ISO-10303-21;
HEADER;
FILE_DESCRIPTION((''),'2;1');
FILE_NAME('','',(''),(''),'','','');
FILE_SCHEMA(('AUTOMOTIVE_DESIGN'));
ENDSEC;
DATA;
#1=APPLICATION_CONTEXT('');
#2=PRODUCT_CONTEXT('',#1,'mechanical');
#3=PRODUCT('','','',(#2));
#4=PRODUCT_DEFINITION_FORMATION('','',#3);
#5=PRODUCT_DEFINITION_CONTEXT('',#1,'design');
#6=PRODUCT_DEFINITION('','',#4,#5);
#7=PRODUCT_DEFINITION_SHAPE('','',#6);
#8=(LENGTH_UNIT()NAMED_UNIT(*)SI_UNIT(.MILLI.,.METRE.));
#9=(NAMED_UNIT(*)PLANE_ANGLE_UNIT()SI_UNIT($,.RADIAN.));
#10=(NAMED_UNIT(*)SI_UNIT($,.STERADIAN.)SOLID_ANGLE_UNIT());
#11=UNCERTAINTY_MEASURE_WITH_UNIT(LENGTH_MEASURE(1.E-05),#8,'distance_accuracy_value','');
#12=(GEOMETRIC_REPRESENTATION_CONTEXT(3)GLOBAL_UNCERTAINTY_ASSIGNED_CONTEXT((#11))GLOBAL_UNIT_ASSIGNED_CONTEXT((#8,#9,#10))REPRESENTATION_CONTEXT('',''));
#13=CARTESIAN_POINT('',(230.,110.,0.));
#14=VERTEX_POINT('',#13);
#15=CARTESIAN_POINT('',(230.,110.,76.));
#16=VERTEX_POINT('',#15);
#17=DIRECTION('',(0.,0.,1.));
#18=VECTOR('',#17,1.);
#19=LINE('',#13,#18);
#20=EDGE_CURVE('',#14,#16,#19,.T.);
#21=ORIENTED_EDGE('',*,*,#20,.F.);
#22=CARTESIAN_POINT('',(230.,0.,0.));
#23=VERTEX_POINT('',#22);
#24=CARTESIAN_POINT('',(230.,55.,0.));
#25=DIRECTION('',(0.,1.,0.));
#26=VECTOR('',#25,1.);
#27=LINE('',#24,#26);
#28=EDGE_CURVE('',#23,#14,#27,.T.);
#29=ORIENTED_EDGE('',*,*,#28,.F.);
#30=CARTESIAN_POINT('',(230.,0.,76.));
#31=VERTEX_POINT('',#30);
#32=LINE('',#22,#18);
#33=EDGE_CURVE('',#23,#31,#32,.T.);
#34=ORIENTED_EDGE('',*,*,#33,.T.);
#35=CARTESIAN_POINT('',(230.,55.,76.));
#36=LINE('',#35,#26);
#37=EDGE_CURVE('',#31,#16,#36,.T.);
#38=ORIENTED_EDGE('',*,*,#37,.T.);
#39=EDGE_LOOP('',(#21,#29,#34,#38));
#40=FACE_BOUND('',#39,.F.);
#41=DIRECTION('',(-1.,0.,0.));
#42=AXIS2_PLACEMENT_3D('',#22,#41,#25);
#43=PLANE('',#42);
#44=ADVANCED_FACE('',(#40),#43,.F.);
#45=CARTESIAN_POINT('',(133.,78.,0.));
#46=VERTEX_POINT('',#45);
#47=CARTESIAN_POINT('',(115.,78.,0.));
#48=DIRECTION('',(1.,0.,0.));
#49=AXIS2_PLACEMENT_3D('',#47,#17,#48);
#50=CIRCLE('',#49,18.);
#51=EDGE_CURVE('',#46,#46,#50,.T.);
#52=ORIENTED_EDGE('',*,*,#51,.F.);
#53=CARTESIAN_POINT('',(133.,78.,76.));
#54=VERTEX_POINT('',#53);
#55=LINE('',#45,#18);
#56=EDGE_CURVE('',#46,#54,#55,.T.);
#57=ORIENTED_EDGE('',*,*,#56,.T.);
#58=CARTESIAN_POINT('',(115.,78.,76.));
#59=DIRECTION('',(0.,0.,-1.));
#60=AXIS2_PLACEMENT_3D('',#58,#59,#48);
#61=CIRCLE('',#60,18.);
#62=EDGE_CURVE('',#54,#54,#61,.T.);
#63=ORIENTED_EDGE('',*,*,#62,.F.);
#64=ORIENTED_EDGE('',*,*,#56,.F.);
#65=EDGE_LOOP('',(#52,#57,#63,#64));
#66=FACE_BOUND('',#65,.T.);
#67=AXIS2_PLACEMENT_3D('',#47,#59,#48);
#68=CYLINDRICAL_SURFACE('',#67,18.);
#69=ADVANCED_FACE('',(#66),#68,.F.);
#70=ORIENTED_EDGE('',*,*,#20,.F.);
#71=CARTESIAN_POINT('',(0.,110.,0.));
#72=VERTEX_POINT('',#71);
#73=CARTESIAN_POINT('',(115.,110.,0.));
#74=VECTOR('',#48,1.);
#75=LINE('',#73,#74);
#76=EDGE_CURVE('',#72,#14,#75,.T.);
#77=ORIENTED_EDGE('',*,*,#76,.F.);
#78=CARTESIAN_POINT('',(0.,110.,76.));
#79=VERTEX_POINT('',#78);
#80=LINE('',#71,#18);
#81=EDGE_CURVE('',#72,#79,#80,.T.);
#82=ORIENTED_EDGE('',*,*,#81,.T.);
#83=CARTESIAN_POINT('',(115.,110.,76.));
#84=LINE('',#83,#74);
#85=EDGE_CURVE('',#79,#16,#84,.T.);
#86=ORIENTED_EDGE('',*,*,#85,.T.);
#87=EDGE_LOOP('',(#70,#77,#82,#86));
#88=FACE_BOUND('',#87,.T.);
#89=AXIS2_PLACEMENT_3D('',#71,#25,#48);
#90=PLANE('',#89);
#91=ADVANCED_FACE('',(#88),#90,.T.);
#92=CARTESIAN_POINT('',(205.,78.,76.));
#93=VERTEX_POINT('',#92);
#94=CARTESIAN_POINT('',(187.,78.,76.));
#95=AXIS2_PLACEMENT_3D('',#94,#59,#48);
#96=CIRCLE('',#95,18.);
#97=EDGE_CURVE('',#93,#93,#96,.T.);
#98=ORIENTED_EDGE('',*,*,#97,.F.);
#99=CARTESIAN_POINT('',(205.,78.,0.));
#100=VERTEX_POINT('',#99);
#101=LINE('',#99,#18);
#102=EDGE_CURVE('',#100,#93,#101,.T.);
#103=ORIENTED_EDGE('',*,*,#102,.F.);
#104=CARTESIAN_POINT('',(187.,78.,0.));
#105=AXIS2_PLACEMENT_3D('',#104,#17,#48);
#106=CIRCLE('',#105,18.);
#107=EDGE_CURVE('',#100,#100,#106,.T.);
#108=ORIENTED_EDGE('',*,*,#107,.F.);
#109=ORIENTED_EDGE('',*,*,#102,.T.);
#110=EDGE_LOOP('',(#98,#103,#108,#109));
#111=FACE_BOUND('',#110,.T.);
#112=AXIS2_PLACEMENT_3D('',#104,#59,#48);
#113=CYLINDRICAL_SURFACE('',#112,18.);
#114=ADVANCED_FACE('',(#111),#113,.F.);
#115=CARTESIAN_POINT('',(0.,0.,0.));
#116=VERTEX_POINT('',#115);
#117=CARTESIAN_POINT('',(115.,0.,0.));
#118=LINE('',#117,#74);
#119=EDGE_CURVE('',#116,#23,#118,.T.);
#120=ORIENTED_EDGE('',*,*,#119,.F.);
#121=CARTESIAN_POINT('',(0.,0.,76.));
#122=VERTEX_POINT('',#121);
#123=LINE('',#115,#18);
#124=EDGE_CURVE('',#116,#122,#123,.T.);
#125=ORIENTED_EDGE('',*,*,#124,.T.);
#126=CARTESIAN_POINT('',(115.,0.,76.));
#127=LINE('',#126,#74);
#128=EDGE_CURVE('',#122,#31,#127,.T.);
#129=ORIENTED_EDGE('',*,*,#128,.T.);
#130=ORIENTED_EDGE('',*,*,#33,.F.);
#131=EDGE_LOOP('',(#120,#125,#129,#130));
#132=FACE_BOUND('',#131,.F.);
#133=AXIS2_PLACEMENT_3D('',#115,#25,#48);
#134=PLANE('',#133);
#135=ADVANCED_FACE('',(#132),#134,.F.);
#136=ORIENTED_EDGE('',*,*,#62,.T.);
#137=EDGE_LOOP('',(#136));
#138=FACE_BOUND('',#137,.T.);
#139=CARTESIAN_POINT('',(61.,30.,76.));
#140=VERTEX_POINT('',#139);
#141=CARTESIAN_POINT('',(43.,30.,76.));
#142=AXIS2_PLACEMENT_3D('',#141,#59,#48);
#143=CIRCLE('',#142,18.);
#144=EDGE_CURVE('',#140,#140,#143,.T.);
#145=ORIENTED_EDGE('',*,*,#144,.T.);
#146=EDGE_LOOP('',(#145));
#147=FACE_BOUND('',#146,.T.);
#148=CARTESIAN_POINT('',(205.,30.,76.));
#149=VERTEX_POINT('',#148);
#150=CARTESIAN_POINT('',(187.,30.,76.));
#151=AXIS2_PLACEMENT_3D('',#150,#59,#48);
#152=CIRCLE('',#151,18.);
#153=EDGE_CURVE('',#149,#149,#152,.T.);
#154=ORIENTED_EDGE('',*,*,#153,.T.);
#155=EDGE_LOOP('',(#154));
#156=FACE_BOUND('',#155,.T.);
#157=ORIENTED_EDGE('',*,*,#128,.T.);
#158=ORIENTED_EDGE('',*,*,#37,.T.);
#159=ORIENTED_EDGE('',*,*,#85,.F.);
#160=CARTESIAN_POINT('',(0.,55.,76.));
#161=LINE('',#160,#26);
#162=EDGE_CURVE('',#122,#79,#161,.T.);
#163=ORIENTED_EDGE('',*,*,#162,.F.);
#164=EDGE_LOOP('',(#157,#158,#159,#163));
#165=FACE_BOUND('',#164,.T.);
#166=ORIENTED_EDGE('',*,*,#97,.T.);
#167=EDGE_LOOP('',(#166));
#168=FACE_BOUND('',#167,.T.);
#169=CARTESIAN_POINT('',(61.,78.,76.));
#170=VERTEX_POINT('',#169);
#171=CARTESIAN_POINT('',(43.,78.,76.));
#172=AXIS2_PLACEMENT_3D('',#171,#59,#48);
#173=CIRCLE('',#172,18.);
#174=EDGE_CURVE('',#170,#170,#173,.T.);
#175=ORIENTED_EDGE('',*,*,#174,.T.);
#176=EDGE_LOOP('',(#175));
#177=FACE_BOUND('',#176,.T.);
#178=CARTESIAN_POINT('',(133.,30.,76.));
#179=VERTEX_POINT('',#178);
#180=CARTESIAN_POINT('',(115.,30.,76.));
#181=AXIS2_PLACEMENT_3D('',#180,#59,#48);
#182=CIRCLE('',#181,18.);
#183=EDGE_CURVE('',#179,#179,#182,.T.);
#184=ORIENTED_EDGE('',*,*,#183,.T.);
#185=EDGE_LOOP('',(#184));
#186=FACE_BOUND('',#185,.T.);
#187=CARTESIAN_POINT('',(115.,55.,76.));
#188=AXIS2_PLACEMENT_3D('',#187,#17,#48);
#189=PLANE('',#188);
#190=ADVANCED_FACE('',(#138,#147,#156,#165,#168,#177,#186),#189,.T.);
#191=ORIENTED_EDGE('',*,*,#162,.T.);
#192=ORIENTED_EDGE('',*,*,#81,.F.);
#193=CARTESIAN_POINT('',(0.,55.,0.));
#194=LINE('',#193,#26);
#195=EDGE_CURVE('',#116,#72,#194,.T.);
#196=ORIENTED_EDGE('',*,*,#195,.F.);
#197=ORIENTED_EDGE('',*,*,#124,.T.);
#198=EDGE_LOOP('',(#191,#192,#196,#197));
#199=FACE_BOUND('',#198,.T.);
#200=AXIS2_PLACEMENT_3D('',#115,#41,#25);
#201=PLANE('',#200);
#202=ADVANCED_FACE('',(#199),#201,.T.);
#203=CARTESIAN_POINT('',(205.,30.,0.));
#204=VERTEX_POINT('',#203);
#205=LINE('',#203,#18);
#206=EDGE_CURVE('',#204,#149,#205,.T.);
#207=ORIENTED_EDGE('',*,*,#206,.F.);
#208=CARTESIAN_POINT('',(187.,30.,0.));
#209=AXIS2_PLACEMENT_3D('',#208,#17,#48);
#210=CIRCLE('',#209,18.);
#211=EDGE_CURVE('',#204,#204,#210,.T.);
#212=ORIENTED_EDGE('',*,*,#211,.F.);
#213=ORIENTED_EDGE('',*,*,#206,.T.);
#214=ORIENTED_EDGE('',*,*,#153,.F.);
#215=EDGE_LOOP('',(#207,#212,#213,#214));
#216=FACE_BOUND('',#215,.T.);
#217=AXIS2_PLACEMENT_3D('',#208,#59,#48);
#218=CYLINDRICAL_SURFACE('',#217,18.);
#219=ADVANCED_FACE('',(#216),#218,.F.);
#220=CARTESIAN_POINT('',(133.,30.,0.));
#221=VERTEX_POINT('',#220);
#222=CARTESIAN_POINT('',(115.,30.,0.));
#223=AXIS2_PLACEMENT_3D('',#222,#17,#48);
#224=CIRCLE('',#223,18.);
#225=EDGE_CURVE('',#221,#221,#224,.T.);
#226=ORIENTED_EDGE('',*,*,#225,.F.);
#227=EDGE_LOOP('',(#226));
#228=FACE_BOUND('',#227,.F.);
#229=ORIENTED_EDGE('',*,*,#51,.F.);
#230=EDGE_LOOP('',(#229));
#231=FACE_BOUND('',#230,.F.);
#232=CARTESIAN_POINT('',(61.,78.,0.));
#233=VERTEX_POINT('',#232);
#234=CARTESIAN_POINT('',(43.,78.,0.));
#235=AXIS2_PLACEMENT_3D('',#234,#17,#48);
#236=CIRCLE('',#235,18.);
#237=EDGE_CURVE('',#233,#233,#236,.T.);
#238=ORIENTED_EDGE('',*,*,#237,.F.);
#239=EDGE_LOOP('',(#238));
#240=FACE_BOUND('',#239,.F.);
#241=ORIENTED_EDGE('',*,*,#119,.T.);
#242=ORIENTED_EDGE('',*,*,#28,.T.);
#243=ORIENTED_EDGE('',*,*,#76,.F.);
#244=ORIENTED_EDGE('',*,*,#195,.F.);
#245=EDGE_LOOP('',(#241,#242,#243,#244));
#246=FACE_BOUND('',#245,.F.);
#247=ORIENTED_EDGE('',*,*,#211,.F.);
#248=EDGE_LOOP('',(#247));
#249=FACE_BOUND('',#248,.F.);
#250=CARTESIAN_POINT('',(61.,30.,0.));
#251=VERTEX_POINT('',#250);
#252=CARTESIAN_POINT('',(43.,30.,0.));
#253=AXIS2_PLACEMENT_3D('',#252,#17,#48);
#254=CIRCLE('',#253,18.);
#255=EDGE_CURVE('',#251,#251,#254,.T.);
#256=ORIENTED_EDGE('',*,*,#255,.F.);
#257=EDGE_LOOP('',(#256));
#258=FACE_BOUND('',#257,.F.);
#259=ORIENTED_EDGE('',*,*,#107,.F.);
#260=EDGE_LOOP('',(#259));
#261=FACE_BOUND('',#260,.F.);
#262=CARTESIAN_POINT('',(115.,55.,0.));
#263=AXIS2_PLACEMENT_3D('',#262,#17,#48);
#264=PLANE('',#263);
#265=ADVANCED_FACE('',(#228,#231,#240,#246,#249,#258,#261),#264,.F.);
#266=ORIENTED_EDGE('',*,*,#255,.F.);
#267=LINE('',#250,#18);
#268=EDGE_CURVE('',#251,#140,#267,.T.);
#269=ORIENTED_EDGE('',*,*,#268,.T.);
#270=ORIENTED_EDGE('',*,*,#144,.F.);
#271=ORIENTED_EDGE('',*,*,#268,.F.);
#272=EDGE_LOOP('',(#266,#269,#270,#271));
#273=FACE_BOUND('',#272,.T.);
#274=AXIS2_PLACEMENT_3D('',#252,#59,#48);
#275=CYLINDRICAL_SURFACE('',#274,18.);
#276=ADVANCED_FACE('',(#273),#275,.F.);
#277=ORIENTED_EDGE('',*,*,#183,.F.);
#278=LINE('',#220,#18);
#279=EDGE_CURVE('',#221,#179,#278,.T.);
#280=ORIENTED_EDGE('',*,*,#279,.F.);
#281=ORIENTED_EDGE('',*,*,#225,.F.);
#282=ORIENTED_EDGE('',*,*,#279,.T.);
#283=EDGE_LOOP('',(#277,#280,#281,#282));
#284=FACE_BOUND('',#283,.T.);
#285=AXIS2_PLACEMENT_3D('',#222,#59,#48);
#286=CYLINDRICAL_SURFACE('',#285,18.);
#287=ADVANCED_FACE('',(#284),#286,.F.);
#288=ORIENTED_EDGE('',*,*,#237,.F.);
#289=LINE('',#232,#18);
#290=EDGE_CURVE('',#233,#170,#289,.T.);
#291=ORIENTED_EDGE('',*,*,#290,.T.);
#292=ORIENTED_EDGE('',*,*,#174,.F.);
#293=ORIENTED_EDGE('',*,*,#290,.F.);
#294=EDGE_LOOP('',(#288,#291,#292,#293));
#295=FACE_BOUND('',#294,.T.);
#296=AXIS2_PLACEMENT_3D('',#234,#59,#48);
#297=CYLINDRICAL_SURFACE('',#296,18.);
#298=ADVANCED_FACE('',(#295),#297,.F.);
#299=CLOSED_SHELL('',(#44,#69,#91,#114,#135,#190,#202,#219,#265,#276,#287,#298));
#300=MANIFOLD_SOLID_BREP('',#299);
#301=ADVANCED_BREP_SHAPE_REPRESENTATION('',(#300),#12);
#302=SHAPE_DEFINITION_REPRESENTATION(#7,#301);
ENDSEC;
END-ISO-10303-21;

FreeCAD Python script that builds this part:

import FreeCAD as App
import Part
import Sketcher

V = App.Vector
Q = App.Units.Quantity


def add_polygon(sketch, points):
    """Adds a closed chain of lines whose ends are joined by coincident constraints."""
    first, n = sketch.GeometryCount, len(points)
    for a, b in zip(points, points[1:] + points[:1]):
        sketch.addGeometry(Part.LineSegment(App.Vector(*a, 0), App.Vector(*b, 0)), False)
    for i in range(n):
        sketch.addConstraint(Sketcher.Constraint("Coincident", first + i, 2, first + (i + 1) % n, 1))

doc = App.newDocument("Part")
body = doc.addObject("PartDesign::Body", "Body")

sketch1 = body.newObject("Sketcher::SketchObject", "Sketch")
sketch1.AttachmentSupport = (doc.getObject("XY_Plane"), [""])
sketch1.MapMode = "FlatFace"
sketch1.addGeometry(Part.Circle(V(43, 78, 0), V(0, 0, 1), 18), False)
sketch1.addConstraint([
    Sketcher.Constraint("Diameter", 0, Q("36 mm")),
    Sketcher.Constraint("DistanceX", -1, 1, 0, 3, Q("43 mm")),
    Sketcher.Constraint("DistanceY", -1, 1, 0, 3, Q("78 mm")),
])
pad1 = body.newObject("PartDesign::Pad", "Pad")
pad1.Profile = sketch1
pad1.Length = 80
body2 = doc.addObject("PartDesign::Body", "Body001")

sketch2 = body2.newObject("Sketcher::SketchObject", "Sketch001")
sketch2.AttachmentSupport = (doc.getObject("XY_Plane001"), [""])
sketch2.MapMode = "FlatFace"
sketch2.addGeometry(Part.Circle(V(115, 78, 0), V(0, 0, 1), 18), False)
sketch2.addConstraint([
    Sketcher.Constraint("Diameter", 0, Q("36 mm")),
    Sketcher.Constraint("DistanceX", -1, 1, 0, 3, Q("115 mm")),
    Sketcher.Constraint("DistanceY", -1, 1, 0, 3, Q("78 mm")),
])
pad2 = body2.newObject("PartDesign::Pad", "Pad001")
pad2.Profile = sketch2
pad2.Length = 80
body3 = doc.addObject("PartDesign::Body", "Body002")

sketch3 = body3.newObject("Sketcher::SketchObject", "Sketch002")
sketch3.AttachmentSupport = (doc.getObject("XY_Plane002"), [""])
sketch3.MapMode = "FlatFace"
sketch3.addGeometry(Part.Circle(V(115, 30, 0), V(0, 0, 1), 18), False)
sketch3.addConstraint([
    Sketcher.Constraint("Diameter", 0, Q("36 mm")),
    Sketcher.Constraint("DistanceX", -1, 1, 0, 3, Q("115 mm")),
    Sketcher.Constraint("DistanceY", -1, 1, 0, 3, Q("30 mm")),
])
pad3 = body3.newObject("PartDesign::Pad", "Pad002")
pad3.Profile = sketch3
pad3.Length = 80
body4 = doc.addObject("PartDesign::Body", "Body003")

sketch4 = body4.newObject("Sketcher::SketchObject", "Sketch003")
sketch4.AttachmentSupport = (doc.getObject("XY_Plane003"), [""])
sketch4.MapMode = "FlatFace"
sketch4.addGeometry(Part.Circle(V(187, 30, 0), V(0, 0, 1), 18), False)
sketch4.addConstraint([
    Sketcher.Constraint("Diameter", 0, Q("36 mm")),
    Sketcher.Constraint("DistanceX", -1, 1, 0, 3, Q("187 mm")),
    Sketcher.Constraint("DistanceY", -1, 1, 0, 3, Q("30 mm")),
])
pad4 = body4.newObject("PartDesign::Pad", "Pad003")
pad4.Profile = sketch4
pad4.Length = 80
body5 = doc.addObject("PartDesign::Body", "Body004")

sketch5 = body5.newObject("Sketcher::SketchObject", "Sketch004")
sketch5.AttachmentSupport = (doc.getObject("XY_Plane004"), [""])
sketch5.MapMode = "FlatFace"
sketch5.addGeometry(Part.Circle(V(187, 78, 0), V(0, 0, 1), 18), False)
sketch5.addConstraint([
    Sketcher.Constraint("Diameter", 0, Q("36 mm")),
    Sketcher.Constraint("DistanceX", -1, 1, 0, 3, Q("187 mm")),
    Sketcher.Constraint("DistanceY", -1, 1, 0, 3, Q("78 mm")),
])
pad5 = body5.newObject("PartDesign::Pad", "Pad004")
pad5.Profile = sketch5
pad5.Length = 80
body6 = doc.addObject("PartDesign::Body", "Body005")
body6.AllowCompound = True

sketch6 = body6.newObject("Sketcher::SketchObject", "Sketch005")
sketch6.AttachmentSupport = (doc.getObject("XY_Plane005"), [""])
sketch6.MapMode = "FlatFace"
sketch6.addGeometry(Part.Circle(V(43, 30, 0), V(0, 0, 1), 18), False)
sketch6.addConstraint([
    Sketcher.Constraint("Diameter", 0, Q("36 mm")),
    Sketcher.Constraint("DistanceX", -1, 1, 0, 3, Q("43 mm")),
    Sketcher.Constraint("DistanceY", -1, 1, 0, 3, Q("30 mm")),
])
pad6 = body6.newObject("PartDesign::Pad", "Pad005")
pad6.Profile = sketch6
pad6.Length = 80
doc.recompute()

boolean = body6.newObject("PartDesign::Boolean", "Boolean")
boolean.Type = "Fuse"
boolean.addObjects([body])
doc.recompute()

boolean2 = body6.newObject("PartDesign::Boolean", "Boolean001")
boolean2.Type = "Fuse"
boolean2.addObjects([body2])
doc.recompute()

boolean3 = body6.newObject("PartDesign::Boolean", "Boolean002")
boolean3.Type = "Fuse"
boolean3.addObjects([body3])
doc.recompute()

boolean4 = body6.newObject("PartDesign::Boolean", "Boolean003")
boolean4.Type = "Fuse"
boolean4.addObjects([body4])
doc.recompute()

boolean5 = body6.newObject("PartDesign::Boolean", "Boolean004")
boolean5.Type = "Fuse"
boolean5.addObjects([body5])
body7 = doc.addObject("PartDesign::Body", "Body006")

sketch7 = body7.newObject("Sketcher::SketchObject", "Sketch006")
sketch7.AttachmentSupport = (doc.getObject("XY_Plane006"), [""])
sketch7.MapMode = "FlatFace"
add_polygon(sketch7, [(0, 110), (0, 0), (230, 0), (230, 110)])
sketch7.addConstraint([
    Sketcher.Constraint("Vertical", 0),
    Sketcher.Constraint("Horizontal", 1),
    Sketcher.Constraint("Vertical", 2),
    Sketcher.Constraint("Horizontal", 3),
    Sketcher.Constraint("Coincident", 0, 2, -1, 1),
    Sketcher.Constraint("DistanceX", 1, 1, 1, 2, Q("230 mm")),
    Sketcher.Constraint("DistanceY", 0, 2, 0, 1, Q("110 mm")),
])
pad7 = body7.newObject("PartDesign::Pad", "Pad006")
pad7.Profile = sketch7
pad7.Length = 76
doc.recompute()

boolean6 = body7.newObject("PartDesign::Boolean", "Boolean005")
boolean6.Type = "Cut"
boolean6.addObjects([body6])

doc.recompute()
